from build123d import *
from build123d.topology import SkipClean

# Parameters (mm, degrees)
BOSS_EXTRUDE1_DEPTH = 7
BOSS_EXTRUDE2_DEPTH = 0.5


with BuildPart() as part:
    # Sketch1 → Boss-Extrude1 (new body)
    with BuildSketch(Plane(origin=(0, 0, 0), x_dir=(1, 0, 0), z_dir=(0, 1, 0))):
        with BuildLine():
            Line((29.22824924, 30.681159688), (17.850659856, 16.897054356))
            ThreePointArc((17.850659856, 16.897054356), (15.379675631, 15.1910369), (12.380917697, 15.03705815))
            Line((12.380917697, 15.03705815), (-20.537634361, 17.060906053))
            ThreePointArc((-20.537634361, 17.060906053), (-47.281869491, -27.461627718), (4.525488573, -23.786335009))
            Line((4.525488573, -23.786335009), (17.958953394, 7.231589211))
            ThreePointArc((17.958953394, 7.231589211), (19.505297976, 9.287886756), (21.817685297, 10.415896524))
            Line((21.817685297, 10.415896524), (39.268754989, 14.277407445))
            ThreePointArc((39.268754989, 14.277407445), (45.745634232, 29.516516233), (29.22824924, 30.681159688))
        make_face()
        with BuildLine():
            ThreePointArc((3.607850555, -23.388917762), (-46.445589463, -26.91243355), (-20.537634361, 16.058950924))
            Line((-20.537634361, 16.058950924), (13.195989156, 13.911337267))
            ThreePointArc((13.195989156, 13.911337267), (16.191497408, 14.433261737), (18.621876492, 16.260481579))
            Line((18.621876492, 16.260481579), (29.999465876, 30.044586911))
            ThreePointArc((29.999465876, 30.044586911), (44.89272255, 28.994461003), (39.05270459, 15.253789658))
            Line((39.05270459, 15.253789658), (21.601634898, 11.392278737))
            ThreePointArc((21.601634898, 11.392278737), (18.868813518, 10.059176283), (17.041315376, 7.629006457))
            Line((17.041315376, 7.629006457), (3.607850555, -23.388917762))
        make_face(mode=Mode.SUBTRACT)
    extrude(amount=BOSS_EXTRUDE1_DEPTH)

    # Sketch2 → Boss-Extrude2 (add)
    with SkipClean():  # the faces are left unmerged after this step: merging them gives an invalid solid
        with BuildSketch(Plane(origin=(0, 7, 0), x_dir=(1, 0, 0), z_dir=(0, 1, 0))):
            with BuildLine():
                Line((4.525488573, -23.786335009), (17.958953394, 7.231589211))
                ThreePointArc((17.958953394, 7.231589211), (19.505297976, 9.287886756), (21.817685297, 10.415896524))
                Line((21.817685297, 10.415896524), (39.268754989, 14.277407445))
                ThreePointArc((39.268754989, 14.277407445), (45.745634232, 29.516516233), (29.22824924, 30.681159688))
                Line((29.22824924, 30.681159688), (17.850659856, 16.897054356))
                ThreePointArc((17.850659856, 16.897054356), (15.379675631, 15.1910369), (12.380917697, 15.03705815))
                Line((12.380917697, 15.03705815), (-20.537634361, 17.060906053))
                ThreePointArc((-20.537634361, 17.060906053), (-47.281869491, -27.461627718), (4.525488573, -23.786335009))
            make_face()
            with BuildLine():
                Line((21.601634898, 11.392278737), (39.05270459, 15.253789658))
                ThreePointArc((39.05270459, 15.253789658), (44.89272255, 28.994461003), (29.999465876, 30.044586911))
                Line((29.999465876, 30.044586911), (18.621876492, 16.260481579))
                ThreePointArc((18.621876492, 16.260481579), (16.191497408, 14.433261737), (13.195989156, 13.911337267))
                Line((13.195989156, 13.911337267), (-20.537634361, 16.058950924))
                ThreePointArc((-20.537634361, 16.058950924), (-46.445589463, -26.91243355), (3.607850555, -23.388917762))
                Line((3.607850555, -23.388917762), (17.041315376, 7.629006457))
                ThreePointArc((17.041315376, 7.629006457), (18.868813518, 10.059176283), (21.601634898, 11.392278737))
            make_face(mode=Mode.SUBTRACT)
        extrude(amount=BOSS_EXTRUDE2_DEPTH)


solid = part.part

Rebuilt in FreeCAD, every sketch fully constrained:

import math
import FreeCAD as App
import Part
import Sketcher
from FreeCAD import Vector

doc = App.newDocument("Part")
body = doc.addObject("PartDesign::Body", "Body")

sketch1 = body.newObject("Sketcher::SketchObject", "Sketch")
sketch1.AttachmentSupport = (doc.getObject("XZ_Plane"), [""])
sketch1.MapMode = "FlatFace"
sketch1.addGeometry([
    Part.LineSegment(Vector(29, -31, 0), Vector(18, -17, 0)),
    Part.ArcOfCircle(Part.Circle(Vector(14, -20, 0), Vector(0, 0, 1), 5), math.radians(40), math.radians(103)),
    Part.LineSegment(Vector(12, -15, 0), Vector(-21, -17, 0)),
    Part.ArcOfCircle(Part.Circle(Vector(-22, 12, 0), Vector(0, 0, 1), 29), math.radians(23), math.radians(274)),
    Part.LineSegment(Vector(5, 24, 0), Vector(18, -7, 0)),
    Part.ArcOfCircle(Part.Circle(Vector(23, -5, 0), Vector(0, 0, 1), 6), math.radians(-157), math.radians(-102)),
    Part.LineSegment(Vector(22, -10, 0), Vector(39, -14, 0)),
    Part.ArcOfCircle(Part.Circle(Vector(37, -24, 0), Vector(0, 0, 1), 10), math.radians(-140), math.radians(78)),
    Part.LineSegment(Vector(17, -8, 0), Vector(4, 23, 0)),
    Part.ArcOfCircle(Part.Circle(Vector(-22, 12, 0), Vector(0, 0, 1), 28), math.radians(23), math.radians(274)),
    Part.LineSegment(Vector(-21, -16, 0), Vector(13, -14, 0)),
    Part.ArcOfCircle(Part.Circle(Vector(14, -20, 0), Vector(0, 0, 1), 6), math.radians(40), math.radians(94)),
    Part.LineSegment(Vector(19, -16, 0), Vector(30, -30, 0)),
    Part.ArcOfCircle(Part.Circle(Vector(37, -24, 0), Vector(0, 0, 1), 9), math.radians(-140), math.radians(78)),
    Part.LineSegment(Vector(39, -15, 0), Vector(22, -11, 0)),
    Part.ArcOfCircle(Part.Circle(Vector(23, -5, 0), Vector(0, 0, 1), 7), math.radians(-157), math.radians(-102)),
], False)
sketch1.addConstraint([
    Sketcher.Constraint("Tangent", 0, 2, 1, 1),
    Sketcher.Constraint("Coincident", 1, 2, 2, 1),
    Sketcher.Constraint("Tangent", 2, 2, 3, 2),
    Sketcher.Constraint("Tangent", 3, 1, 4, 1),
    Sketcher.Constraint("Tangent", 4, 2, 5, 1),
    Sketcher.Constraint("Tangent", 5, 2, 6, 1),
    Sketcher.Constraint("Tangent", 6, 2, 7, 2),
    Sketcher.Constraint("Tangent", 7, 1, 0, 1),
    Sketcher.Constraint("Tangent", 8, 2, 9, 1),
    Sketcher.Constraint("Tangent", 9, 2, 10, 1),
    Sketcher.Constraint("Tangent", 10, 2, 11, 2),
    Sketcher.Constraint("Tangent", 11, 1, 12, 1),
    Sketcher.Constraint("Tangent", 12, 2, 13, 1),
    Sketcher.Constraint("Tangent", 13, 2, 14, 1),
    Sketcher.Constraint("Tangent", 14, 2, 15, 2),
    Sketcher.Constraint("Tangent", 15, 1, 8, 1),
    Sketcher.Constraint("Coincident", 9, 3, 3, 3),
    Sketcher.Constraint("Coincident", 11, 3, 1, 3),
    Sketcher.Constraint("Coincident", 13, 3, 7, 3),
    Sketcher.Constraint("Coincident", 15, 3, 5, 3),
    Sketcher.Constraint("Equal", 1, 5),
    Sketcher.Constraint("Equal", 11, 15),
    Sketcher.Constraint("Parallel", 4, 8),
    Sketcher.Constraint("Parallel", 0, 12),
    Sketcher.Constraint("Vertical", 2, 2, 9, 2),
    Sketcher.Constraint("Equal", 0, 6),
    Sketcher.Constraint("Equal", 8, 10),
    Sketcher.Constraint("Radius", 1, 5.5),
    Sketcher.Constraint("Radius", 11, 6.5),
    Sketcher.Constraint("Radius", 3, 29.27),
    Sketcher.Constraint("Radius", 7, 10.17),
    Sketcher.Constraint("DistanceX", 3, 3, 7, 3, 59.405299),
    Sketcher.Constraint("DistanceY", 11, 3, 2, 2, 3.337299),
    Sketcher.Constraint("DistanceX", -1, 1, 1, 3, 13.608968),
    Sketcher.Constraint("DistanceX", -1, 1, 0, 2, 17.85066),
    Sketcher.Constraint("DistanceY", 1, 2, -1, 1, 15.037058),
    Sketcher.Constraint("DistanceX", -1, 1, 3, 1, 4.525489),
])
pad1 = body.newObject("PartDesign::Pad", "Pad")
pad1.Profile = sketch1
pad1.Length = 7
pad1.Reversed = True

sketch2 = body.newObject("Sketcher::SketchObject", "Sketch001")
sketch2.AttachmentSupport = (doc.getObject("XZ_Plane"), [""])
sketch2.MapMode = "FlatFace"
sketch2.AttachmentOffset = App.Placement(Vector(0, 0, -7), App.Rotation())
sketch2.addGeometry([
    Part.LineSegment(Vector(5, 24, 0), Vector(18, -7, 0)),
    Part.ArcOfCircle(Part.Circle(Vector(23, -5, 0), Vector(0, 0, 1), 6), math.radians(-157), math.radians(-102)),
    Part.LineSegment(Vector(22, -10, 0), Vector(39, -14, 0)),
    Part.ArcOfCircle(Part.Circle(Vector(37, -24, 0), Vector(0, 0, 1), 10), math.radians(-140), math.radians(78)),
    Part.LineSegment(Vector(29, -31, 0), Vector(18, -17, 0)),
    Part.ArcOfCircle(Part.Circle(Vector(14, -20, 0), Vector(0, 0, 1), 5), math.radians(40), math.radians(103)),
    Part.LineSegment(Vector(12, -15, 0), Vector(-21, -17, 0)),
    Part.ArcOfCircle(Part.Circle(Vector(-22, 12, 0), Vector(0, 0, 1), 29), math.radians(23), math.radians(274)),
    Part.LineSegment(Vector(39, -15, 0), Vector(22, -11, 0)),
    Part.ArcOfCircle(Part.Circle(Vector(23, -5, 0), Vector(0, 0, 1), 7), math.radians(-157), math.radians(-102)),
    Part.LineSegment(Vector(17, -8, 0), Vector(4, 23, 0)),
    Part.ArcOfCircle(Part.Circle(Vector(-22, 12, 0), Vector(0, 0, 1), 28), math.radians(23), math.radians(274)),
    Part.LineSegment(Vector(-21, -16, 0), Vector(13, -14, 0)),
    Part.ArcOfCircle(Part.Circle(Vector(14, -20, 0), Vector(0, 0, 1), 6), math.radians(40), math.radians(94)),
    Part.LineSegment(Vector(19, -16, 0), Vector(30, -30, 0)),
    Part.ArcOfCircle(Part.Circle(Vector(37, -24, 0), Vector(0, 0, 1), 9), math.radians(-140), math.radians(78)),
], False)
sketch2.addConstraint([
    Sketcher.Constraint("Tangent", 0, 2, 1, 1),
    Sketcher.Constraint("Tangent", 1, 2, 2, 1),
    Sketcher.Constraint("Tangent", 2, 2, 3, 2),
    Sketcher.Constraint("Tangent", 3, 1, 4, 1),
    Sketcher.Constraint("Tangent", 4, 2, 5, 1),
    Sketcher.Constraint("Coincident", 5, 2, 6, 1),
    Sketcher.Constraint("Tangent", 6, 2, 7, 2),
    Sketcher.Constraint("Tangent", 7, 1, 0, 1),
    Sketcher.Constraint("Tangent", 8, 2, 9, 2),
    Sketcher.Constraint("Tangent", 9, 1, 10, 1),
    Sketcher.Constraint("Tangent", 10, 2, 11, 1),
    Sketcher.Constraint("Tangent", 11, 2, 12, 1),
    Sketcher.Constraint("Tangent", 12, 2, 13, 2),
    Sketcher.Constraint("Tangent", 13, 1, 14, 1),
    Sketcher.Constraint("Tangent", 14, 2, 15, 1),
    Sketcher.Constraint("Tangent", 15, 2, 8, 1),
    Sketcher.Constraint("Coincident", 9, 3, 1, 3),
    Sketcher.Constraint("Coincident", 11, 3, 7, 3),
    Sketcher.Constraint("Coincident", 13, 3, 5, 3),
    Sketcher.Constraint("Coincident", 15, 3, 3, 3),
    Sketcher.Constraint("Equal", 1, 5),
    Sketcher.Constraint("Equal", 9, 13),
    Sketcher.Constraint("Parallel", 2, 8),
    Sketcher.Constraint("Parallel", 0, 10),
    Sketcher.Constraint("Vertical", 6, 2, 11, 2),
    Sketcher.Constraint("Equal", 2, 4),
    Sketcher.Constraint("Equal", 10, 12),
    Sketcher.Constraint("Radius", 1, 5.5),
    Sketcher.Constraint("Radius", 9, 6.5),
    Sketcher.Constraint("Radius", 3, 10.17),
    Sketcher.Constraint("Radius", 7, 29.27),
    Sketcher.Constraint("DistanceX", 7, 3, 3, 3, 59.405299),
    Sketcher.Constraint("DistanceY", 13, 3, 6, 2, 3.337299),
    Sketcher.Constraint("DistanceX", -1, 1, 5, 3, 13.608968),
    Sketcher.Constraint("DistanceY", 0, 2, -1, 1, 7.231589),
    Sketcher.Constraint("DistanceX", -1, 1, 3, 1, 29.228249),
    Sketcher.Constraint("DistanceX", -1, 1, 4, 2, 17.85066),
])
pad2 = body.newObject("PartDesign::Pad", "Pad001")
pad2.Profile = sketch2
pad2.Length = 0.5
pad2.Reversed = True

doc.recompute()
